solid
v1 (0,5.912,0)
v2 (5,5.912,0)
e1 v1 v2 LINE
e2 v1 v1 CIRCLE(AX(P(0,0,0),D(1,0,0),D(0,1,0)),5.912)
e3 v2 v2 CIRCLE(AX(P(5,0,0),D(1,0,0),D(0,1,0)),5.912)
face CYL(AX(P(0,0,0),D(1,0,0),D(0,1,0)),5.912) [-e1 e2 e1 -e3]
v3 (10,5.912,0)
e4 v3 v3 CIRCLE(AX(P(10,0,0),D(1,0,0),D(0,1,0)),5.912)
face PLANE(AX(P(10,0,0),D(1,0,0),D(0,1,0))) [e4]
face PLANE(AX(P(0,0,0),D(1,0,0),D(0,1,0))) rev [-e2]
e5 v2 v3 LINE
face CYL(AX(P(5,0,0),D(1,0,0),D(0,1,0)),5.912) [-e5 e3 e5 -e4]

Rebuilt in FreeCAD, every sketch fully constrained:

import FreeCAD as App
import Part
import Sketcher
from FreeCAD import Vector


def add_polygon(sketch, points):
    """Adds a closed chain of lines whose ends are joined by coincident constraints."""
    first, n = sketch.GeometryCount, len(points)
    for a, b in zip(points, points[1:] + points[:1]):
        sketch.addGeometry(Part.LineSegment(App.Vector(*a, 0), App.Vector(*b, 0)), False)
    for i in range(n):
        sketch.addConstraint(Sketcher.Constraint("Coincident", first + i, 2, first + (i + 1) % n, 1))

doc = App.newDocument("Part")
body = doc.addObject("PartDesign::Body", "Body")

sketch1 = body.newObject("Sketcher::SketchObject", "Sketch")
sketch1.AttachmentSupport = (doc.getObject("XY_Plane"), [""])
sketch1.MapMode = "FlatFace"
add_polygon(sketch1, [(0, 6), (0, 0), (10, 0), (10, 6)])
sketch1.addConstraint([
    Sketcher.Constraint("Vertical", 0),
    Sketcher.Constraint("Horizontal", 1),
    Sketcher.Constraint("Vertical", 2),
    Sketcher.Constraint("Horizontal", 3),
    Sketcher.Constraint("Coincident", 0, 2, -1, 1),
    Sketcher.Constraint("DistanceX", 1, 1, 1, 2, 10.0),
    Sketcher.Constraint("DistanceY", 0, 2, 0, 1, 5.912),
])
revolution = body.newObject("PartDesign::Revolution", "Revolution")
revolution.Profile = sketch1
revolution.ReferenceAxis = (sketch1, ["H_Axis"])
revolution.Angle = 360

doc.recompute()
